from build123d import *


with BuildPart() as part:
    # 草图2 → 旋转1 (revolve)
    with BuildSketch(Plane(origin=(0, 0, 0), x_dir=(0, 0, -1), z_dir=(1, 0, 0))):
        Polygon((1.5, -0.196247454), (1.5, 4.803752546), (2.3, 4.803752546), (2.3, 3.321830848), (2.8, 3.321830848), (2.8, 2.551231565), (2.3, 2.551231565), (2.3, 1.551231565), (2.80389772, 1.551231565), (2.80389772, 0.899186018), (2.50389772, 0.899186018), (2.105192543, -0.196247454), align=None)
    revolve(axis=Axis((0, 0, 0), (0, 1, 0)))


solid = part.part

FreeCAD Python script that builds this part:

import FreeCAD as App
import Part
import Sketcher

V = App.Vector
Q = App.Units.Quantity


def add_polygon(sketch, points):
    """Adds a closed chain of lines whose ends are joined by coincident constraints."""
    first, n = sketch.GeometryCount, len(points)
    for a, b in zip(points, points[1:] + points[:1]):
        sketch.addGeometry(Part.LineSegment(App.Vector(*a, 0), App.Vector(*b, 0)), False)
    for i in range(n):
        sketch.addConstraint(Sketcher.Constraint("Coincident", first + i, 2, first + (i + 1) % n, 1))

doc = App.newDocument("Part")
body = doc.addObject("PartDesign::Body", "Body")

# Sketch on YZ plane
sketch1 = body.newObject("Sketcher::SketchObject", "Sketch")
sketch1.AttachmentSupport = (doc.getObject("YZ_Plane"), [""])
sketch1.MapMode = "FlatFace"
add_polygon(sketch1, [(4.803753, -1.5), (-0.196247, -1.5), (-0.196247, -2.105193), (0.899186, -2.503898), (0.899186, -2.803898), (1.551232, -2.803898), (1.551232, -2.3), (2.551232, -2.3), (2.551232, -2.8), (3.321831, -2.8), (3.321831, -2.3), (4.803753, -2.3)])  # lines 0-11
sketch1.addConstraint([
    Sketcher.Constraint("Horizontal", 0),
    Sketcher.Constraint("Vertical", 1),
    Sketcher.Constraint("Vertical", 3),
    Sketcher.Constraint("Horizontal", 4),
    Sketcher.Constraint("Vertical", 5),
    Sketcher.Constraint("Horizontal", 6),
    Sketcher.Constraint("Vertical", 7),
    Sketcher.Constraint("Horizontal", 8),
    Sketcher.Constraint("Vertical", 9),
    Sketcher.Constraint("Horizontal", 10),
    Sketcher.Constraint("Vertical", 11),
    Sketcher.Constraint("Horizontal", 6, 2, 9, 2),
    Sketcher.Constraint("DistanceX", 0, 2, 0, 1, Q("5 mm")),
    Sketcher.Constraint("DistanceX", 6, 1, 6, 2, Q("1 mm")),
    Sketcher.Constraint("Angle", 2, Q("-20 deg")),
    Sketcher.Constraint("DistanceY", 3, 2, 3, 1, Q("0.3 mm")),
    Sketcher.Constraint("DistanceY", 7, 2, 7, 1, Q("0.5 mm")),
    Sketcher.Constraint("DistanceY", 11, 1, 11, 2, Q("0.8 mm")),
    Sketcher.Constraint("DistanceY", 0, 2, -1, 1, Q("1.5 mm")),
    Sketcher.Constraint("DistanceX", 8, 1, 8, 2, Q("0.770599 mm")),
    Sketcher.Constraint("DistanceX", 10, 1, 10, 2, Q("1.481922 mm")),
    Sketcher.Constraint("DistanceX", 4, 1, 4, 2, Q("0.652046 mm")),
    Sketcher.Constraint("DistanceY", 1, 2, 1, 1, Q("0.605193 mm")),
    Sketcher.Constraint("DistanceX", -1, 1, 4, 2, Q("1.551232 mm")),
])
revolution = body.newObject("PartDesign::Revolution", "Revolution")
revolution.Profile = sketch1
revolution.ReferenceAxis = (sketch1, ["H_Axis"])
revolution.Angle = 360

doc.recompute()
